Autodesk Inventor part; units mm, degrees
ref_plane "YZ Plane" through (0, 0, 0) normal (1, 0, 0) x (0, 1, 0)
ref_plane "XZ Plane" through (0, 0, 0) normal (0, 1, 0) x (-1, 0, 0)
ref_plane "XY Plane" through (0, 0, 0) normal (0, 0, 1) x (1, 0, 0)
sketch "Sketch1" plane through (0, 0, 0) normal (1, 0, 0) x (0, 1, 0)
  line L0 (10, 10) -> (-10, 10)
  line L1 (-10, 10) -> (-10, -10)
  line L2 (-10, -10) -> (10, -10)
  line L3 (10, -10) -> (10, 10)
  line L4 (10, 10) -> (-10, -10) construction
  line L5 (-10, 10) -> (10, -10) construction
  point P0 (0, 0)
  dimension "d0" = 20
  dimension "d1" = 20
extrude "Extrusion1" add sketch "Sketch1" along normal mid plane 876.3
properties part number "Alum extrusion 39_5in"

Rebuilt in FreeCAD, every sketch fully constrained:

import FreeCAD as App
import Part
import Sketcher
Q = App.Units.Quantity

doc = App.newDocument("Part")
body = doc.addObject("PartDesign::Body", "Body")

sketch1 = body.newObject("Sketcher::SketchObject", "Sketch")
sketch1.AttachmentSupport = (doc.getObject("YZ_Plane"), [""])
sketch1.MapMode = "FlatFace"
sketch1.addGeometry(Part.LineSegment(App.Vector(10, -10, 0), App.Vector(10, 10, 0)), False)
sketch1.addGeometry(Part.LineSegment(App.Vector(10, 10, 0), App.Vector(-10, 10, 0)), False)
sketch1.addGeometry(Part.LineSegment(App.Vector(-10, 10, 0), App.Vector(-10, -10, 0)), False)
sketch1.addGeometry(Part.LineSegment(App.Vector(-10, -10, 0), App.Vector(10, -10, 0)), False)
sketch1.addConstraint(Sketcher.Constraint("Coincident", 0, 2, 1, 1))
sketch1.addConstraint(Sketcher.Constraint("Coincident", 1, 2, 2, 1))
sketch1.addConstraint(Sketcher.Constraint("Coincident", 2, 2, 3, 1))
sketch1.addConstraint(Sketcher.Constraint("Coincident", 3, 2, 0, 1))
sketch1.addConstraint(Sketcher.Constraint("Vertical", 0))
sketch1.addConstraint(Sketcher.Constraint("Horizontal", 1))
sketch1.addConstraint(Sketcher.Constraint("Vertical", 2))
sketch1.addConstraint(Sketcher.Constraint("Horizontal", 3))
sketch1.addConstraint(Sketcher.Constraint("Symmetric", 0, 2, 2, 2, -1, 1))
sketch1.addConstraint(Sketcher.Constraint("Equal", 3, 0))
sketch1.addConstraint(Sketcher.Constraint("DistanceX", 1, 2, 1, 1, Q("0.7874 in")))
pad1 = body.newObject("PartDesign::Pad", "Pad")
pad1.Profile = sketch1
pad1.Length = Q("34.5 in")
pad1.Midplane = True

doc.recompute()
